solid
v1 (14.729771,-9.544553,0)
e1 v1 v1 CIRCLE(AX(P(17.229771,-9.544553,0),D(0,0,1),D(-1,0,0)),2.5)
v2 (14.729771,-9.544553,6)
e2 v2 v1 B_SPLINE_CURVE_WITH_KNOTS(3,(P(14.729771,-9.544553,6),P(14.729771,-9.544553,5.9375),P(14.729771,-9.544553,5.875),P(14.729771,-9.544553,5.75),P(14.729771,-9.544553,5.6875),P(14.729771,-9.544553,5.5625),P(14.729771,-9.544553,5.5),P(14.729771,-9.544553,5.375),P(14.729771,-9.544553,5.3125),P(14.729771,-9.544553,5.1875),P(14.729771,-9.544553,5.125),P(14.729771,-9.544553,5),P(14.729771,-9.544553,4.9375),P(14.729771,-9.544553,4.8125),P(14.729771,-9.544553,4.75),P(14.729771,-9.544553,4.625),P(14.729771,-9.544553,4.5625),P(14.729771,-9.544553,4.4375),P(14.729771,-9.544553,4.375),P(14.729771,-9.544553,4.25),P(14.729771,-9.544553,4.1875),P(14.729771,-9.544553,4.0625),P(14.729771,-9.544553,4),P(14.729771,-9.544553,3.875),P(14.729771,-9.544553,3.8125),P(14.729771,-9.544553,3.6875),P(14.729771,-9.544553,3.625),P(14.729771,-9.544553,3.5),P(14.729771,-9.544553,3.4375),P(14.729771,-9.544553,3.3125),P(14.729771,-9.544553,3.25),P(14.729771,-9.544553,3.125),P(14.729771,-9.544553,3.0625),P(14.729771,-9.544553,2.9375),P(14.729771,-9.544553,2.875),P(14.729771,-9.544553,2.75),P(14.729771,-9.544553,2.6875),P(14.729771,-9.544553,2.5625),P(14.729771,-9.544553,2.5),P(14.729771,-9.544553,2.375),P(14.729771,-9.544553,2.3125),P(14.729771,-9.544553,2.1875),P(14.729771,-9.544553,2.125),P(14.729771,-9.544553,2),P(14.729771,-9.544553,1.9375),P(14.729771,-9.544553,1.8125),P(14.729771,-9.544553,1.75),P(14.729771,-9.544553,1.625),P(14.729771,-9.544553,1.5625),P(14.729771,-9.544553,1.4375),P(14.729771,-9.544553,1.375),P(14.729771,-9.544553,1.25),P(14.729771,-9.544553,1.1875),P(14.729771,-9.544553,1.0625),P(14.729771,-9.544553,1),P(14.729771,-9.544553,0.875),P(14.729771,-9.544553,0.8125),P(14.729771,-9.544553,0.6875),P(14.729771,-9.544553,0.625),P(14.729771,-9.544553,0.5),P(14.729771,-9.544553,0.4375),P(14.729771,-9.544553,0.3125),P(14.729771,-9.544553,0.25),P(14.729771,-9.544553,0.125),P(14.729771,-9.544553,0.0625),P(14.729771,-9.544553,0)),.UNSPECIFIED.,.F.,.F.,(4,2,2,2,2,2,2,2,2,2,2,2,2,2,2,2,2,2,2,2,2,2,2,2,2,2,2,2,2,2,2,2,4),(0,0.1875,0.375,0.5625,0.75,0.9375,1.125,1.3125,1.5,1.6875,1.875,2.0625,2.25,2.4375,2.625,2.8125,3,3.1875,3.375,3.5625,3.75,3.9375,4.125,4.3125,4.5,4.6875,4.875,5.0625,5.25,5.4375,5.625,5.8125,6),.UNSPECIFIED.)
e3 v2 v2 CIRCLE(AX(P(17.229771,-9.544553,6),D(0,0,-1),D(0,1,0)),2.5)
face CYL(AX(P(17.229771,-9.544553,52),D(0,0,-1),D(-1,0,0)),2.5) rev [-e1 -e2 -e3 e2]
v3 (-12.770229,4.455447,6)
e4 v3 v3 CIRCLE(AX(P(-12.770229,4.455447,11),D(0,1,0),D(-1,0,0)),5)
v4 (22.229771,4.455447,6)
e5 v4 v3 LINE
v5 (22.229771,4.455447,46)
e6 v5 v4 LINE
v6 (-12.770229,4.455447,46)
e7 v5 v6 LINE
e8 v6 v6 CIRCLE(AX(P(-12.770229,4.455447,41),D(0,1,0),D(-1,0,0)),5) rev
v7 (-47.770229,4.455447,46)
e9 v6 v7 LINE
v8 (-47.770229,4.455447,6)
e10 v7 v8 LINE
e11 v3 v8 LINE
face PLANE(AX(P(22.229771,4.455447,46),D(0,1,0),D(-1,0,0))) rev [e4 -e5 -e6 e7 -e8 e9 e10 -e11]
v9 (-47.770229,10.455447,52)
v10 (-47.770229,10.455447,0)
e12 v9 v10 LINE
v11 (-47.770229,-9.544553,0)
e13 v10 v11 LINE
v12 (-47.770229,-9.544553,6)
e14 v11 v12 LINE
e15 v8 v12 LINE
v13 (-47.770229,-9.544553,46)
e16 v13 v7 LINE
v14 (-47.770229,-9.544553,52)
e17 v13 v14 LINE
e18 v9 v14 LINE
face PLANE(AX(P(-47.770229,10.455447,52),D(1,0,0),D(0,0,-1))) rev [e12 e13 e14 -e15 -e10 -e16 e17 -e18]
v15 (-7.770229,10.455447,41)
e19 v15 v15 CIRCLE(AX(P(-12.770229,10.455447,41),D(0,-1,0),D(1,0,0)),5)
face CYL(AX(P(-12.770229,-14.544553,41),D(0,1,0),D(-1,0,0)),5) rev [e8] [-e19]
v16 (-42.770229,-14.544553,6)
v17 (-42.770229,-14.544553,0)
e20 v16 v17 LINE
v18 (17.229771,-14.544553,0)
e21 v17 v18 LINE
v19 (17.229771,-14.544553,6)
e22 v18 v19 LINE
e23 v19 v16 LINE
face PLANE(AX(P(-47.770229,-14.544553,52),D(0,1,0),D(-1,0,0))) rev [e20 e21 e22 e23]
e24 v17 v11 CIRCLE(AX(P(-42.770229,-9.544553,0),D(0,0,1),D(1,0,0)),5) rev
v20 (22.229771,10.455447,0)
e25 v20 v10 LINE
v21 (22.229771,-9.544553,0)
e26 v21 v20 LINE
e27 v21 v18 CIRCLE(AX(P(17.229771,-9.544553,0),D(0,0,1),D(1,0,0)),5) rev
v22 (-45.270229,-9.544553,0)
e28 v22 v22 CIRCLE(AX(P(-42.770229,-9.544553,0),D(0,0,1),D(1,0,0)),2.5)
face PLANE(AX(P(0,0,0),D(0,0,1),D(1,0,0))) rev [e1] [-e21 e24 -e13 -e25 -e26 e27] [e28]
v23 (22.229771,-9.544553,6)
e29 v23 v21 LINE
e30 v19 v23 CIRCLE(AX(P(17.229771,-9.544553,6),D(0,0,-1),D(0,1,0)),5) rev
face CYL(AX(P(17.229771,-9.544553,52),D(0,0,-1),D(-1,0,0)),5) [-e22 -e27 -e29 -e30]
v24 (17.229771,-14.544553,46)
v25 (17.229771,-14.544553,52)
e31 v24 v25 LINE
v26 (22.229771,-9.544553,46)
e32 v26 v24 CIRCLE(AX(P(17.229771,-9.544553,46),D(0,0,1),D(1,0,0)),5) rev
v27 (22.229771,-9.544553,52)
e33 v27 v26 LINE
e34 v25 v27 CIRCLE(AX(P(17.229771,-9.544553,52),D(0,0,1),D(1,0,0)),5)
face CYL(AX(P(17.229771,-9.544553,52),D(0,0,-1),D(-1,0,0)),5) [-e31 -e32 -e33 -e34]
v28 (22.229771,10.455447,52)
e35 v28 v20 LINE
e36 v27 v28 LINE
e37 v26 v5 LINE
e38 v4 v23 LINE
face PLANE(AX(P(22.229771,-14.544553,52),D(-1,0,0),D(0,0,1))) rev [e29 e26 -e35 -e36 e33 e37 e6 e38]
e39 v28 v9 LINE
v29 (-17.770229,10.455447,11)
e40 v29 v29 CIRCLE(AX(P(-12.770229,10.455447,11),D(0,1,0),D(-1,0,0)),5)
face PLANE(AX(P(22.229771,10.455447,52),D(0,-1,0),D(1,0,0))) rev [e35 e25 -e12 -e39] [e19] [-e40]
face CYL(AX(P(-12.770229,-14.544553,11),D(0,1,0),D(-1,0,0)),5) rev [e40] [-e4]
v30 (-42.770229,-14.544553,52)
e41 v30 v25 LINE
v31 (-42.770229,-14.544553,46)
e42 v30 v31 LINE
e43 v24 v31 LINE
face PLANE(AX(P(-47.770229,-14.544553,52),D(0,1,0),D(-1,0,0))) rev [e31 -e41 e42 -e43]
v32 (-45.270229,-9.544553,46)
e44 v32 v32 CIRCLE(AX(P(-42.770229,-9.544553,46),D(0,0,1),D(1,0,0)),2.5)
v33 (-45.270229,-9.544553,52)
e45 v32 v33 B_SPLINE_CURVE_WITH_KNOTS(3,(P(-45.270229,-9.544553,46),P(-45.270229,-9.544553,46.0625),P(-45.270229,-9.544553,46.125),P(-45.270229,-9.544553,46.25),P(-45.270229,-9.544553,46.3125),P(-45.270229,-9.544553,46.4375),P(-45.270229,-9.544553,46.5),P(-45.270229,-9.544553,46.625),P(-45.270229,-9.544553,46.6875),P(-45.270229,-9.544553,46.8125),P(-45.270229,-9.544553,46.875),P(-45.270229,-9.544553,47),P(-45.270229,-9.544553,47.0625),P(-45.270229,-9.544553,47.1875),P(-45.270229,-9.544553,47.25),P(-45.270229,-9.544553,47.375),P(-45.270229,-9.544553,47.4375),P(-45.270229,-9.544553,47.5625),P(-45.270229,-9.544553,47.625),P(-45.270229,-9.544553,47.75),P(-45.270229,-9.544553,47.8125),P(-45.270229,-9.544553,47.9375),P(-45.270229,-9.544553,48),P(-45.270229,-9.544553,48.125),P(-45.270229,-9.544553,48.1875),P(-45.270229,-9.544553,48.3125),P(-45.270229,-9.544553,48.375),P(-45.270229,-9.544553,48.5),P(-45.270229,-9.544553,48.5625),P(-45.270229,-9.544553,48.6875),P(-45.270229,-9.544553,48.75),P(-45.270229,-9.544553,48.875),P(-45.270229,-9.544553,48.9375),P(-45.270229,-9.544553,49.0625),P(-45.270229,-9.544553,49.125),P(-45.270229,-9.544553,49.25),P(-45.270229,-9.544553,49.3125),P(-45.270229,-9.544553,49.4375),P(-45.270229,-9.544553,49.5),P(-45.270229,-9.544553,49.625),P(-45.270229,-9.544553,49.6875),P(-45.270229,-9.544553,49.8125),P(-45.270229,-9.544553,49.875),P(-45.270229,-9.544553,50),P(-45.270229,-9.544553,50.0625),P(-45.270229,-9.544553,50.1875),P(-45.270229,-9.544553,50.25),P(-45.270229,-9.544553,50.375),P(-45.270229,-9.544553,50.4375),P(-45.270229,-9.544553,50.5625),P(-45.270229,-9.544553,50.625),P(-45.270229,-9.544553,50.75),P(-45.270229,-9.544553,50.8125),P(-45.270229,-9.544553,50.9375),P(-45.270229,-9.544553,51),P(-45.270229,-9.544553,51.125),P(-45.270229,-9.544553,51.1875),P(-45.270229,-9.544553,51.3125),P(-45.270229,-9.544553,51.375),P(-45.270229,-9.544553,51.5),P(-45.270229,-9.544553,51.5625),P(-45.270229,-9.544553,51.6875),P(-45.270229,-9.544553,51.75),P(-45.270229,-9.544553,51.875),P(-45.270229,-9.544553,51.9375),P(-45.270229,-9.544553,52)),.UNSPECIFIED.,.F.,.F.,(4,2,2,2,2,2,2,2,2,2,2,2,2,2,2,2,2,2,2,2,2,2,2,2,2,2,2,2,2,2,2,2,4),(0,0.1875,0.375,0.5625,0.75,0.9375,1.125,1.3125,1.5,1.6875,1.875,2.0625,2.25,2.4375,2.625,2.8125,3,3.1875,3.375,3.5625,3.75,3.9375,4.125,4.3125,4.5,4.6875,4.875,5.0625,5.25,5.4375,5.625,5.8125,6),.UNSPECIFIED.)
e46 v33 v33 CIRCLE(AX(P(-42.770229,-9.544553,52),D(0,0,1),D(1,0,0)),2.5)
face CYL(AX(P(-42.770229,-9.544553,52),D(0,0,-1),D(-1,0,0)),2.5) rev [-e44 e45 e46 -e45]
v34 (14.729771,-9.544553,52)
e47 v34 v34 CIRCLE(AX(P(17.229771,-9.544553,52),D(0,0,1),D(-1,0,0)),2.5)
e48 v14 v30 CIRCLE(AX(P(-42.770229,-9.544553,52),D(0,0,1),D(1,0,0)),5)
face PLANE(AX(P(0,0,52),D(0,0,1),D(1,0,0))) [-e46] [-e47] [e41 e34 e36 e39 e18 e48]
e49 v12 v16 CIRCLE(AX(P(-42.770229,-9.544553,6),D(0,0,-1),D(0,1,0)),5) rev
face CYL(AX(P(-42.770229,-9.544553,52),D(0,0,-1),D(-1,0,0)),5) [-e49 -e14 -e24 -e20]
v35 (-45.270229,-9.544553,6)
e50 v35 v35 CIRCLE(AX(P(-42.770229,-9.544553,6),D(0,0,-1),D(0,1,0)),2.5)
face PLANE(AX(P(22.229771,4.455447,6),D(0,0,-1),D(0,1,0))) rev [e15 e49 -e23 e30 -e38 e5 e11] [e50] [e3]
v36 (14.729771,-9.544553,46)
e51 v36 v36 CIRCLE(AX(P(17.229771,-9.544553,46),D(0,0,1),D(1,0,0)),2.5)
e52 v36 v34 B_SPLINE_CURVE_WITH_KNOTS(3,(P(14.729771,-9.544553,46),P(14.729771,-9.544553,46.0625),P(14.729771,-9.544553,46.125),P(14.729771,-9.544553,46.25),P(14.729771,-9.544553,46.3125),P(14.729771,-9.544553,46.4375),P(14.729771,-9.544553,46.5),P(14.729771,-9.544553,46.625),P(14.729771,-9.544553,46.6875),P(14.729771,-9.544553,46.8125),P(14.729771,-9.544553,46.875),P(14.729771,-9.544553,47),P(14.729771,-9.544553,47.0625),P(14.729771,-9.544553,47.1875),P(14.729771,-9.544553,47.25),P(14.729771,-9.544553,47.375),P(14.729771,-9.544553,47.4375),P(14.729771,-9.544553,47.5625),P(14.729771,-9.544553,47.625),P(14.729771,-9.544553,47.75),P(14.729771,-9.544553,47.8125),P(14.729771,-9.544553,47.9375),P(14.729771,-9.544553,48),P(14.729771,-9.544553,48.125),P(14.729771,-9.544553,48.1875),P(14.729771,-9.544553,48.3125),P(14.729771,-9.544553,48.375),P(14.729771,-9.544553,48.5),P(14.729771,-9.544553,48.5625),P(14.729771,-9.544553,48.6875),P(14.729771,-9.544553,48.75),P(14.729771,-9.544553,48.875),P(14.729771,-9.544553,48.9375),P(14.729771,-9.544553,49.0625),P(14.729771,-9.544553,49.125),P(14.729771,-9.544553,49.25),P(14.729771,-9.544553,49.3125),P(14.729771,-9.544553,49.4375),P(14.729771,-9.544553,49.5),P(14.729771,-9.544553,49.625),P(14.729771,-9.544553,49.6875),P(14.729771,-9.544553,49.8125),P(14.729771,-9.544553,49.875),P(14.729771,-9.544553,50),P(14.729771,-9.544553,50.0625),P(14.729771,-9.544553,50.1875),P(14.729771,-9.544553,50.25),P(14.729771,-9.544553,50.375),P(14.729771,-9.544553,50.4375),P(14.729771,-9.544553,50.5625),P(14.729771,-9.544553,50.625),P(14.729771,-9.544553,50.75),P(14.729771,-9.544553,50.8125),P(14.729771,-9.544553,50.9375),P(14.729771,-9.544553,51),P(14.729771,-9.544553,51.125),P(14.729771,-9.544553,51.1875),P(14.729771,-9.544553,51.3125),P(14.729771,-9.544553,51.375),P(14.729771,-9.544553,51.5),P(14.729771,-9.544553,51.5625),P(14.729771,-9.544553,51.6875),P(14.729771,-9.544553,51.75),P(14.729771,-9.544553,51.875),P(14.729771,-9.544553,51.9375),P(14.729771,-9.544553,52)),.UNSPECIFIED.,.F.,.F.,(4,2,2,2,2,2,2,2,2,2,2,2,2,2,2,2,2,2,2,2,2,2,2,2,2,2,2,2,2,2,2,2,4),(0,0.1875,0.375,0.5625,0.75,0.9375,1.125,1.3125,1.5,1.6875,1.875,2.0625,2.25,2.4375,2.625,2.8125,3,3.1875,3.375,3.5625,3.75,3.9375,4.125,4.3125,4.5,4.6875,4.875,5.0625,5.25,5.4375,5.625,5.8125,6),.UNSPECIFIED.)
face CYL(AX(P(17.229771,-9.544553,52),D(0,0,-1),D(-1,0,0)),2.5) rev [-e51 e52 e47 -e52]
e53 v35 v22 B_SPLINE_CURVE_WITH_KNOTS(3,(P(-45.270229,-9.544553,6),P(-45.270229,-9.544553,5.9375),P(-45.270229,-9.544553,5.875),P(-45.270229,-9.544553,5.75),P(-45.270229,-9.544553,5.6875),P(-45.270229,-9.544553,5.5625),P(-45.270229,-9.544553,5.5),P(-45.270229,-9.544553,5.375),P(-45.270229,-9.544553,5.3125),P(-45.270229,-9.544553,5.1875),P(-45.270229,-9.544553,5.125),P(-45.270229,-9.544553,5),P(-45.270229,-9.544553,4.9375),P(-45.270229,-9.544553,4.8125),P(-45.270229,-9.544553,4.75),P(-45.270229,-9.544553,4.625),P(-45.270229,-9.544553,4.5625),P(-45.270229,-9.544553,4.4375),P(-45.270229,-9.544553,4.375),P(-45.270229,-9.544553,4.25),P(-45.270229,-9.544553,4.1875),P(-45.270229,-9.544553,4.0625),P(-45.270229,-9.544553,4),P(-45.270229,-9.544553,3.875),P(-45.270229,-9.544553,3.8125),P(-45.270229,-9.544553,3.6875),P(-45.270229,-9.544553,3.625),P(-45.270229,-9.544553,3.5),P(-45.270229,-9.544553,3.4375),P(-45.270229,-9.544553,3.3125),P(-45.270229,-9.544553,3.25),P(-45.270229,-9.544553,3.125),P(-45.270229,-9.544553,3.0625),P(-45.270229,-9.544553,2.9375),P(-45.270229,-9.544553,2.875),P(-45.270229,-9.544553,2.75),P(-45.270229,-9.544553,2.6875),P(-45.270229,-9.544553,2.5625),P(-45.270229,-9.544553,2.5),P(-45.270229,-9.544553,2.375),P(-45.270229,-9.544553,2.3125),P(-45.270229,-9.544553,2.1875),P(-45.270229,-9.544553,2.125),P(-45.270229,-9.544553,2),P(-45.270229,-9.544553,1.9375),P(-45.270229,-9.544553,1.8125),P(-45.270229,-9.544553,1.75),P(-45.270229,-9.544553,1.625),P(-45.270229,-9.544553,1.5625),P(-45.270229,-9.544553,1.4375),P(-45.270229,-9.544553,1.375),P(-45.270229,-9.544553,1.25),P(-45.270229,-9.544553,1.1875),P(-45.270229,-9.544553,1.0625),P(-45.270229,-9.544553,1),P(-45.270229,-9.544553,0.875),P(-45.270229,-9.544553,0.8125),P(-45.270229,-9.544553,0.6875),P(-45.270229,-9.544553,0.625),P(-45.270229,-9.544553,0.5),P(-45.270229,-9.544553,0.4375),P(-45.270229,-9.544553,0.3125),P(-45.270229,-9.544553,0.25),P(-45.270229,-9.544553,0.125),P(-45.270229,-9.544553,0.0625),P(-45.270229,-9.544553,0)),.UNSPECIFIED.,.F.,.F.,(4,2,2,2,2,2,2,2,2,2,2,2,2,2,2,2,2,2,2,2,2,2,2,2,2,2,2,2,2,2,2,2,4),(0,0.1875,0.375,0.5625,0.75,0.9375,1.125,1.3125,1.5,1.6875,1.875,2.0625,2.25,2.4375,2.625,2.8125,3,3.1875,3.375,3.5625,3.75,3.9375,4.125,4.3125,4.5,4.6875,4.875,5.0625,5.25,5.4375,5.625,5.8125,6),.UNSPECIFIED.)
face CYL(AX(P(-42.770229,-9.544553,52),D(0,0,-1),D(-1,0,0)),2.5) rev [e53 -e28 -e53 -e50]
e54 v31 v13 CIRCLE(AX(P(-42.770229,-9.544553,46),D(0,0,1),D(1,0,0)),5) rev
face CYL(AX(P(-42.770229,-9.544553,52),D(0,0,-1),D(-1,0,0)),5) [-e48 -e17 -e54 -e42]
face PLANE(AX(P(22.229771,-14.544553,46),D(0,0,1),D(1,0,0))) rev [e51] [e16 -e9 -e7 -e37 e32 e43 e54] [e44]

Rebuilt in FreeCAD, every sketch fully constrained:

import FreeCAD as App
import Part
import Sketcher
Q = App.Units.Quantity


def edges_at(feature, points):
    """Names of the edges that pass closest to the given points."""
    edges = feature.Shape.Edges
    near = lambda p: min(range(len(edges)), key=lambda i: edges[i].distToShape(Part.Vertex(*p))[0])
    return sorted({f"Edge{near(p) + 1}" for p in points})


def add_polygon(sketch, points):
    """Adds a closed chain of lines whose ends are joined by coincident constraints."""
    first, n = sketch.GeometryCount, len(points)
    for a, b in zip(points, points[1:] + points[:1]):
        sketch.addGeometry(Part.LineSegment(App.Vector(*a, 0), App.Vector(*b, 0)), False)
    for i in range(n):
        sketch.addConstraint(Sketcher.Constraint("Coincident", first + i, 2, first + (i + 1) % n, 1))

doc = App.newDocument("Part")
body = doc.addObject("PartDesign::Body", "Body")

# Sketch on XY plane
sketch1 = doc.addObject("Sketcher::SketchObject", "Sketch")
body.addObject(sketch1)
sketch1.AttachmentSupport = (doc.XY_Plane, [""])
sketch1.MapMode = "FlatFace"
add_polygon(sketch1, [(-47.770229, 10.455447), (-47.770229, -14.544553), (22.229771, -14.544553), (22.229771, 10.455447)])  # lines 0-3
sketch1.addGeometry(Part.Circle(App.Vector(-42.770229, -9.544553, 0), App.Vector(0, 0, 1), 2.5), False)  # 4
sketch1.addGeometry(Part.Circle(App.Vector(17.229771, -9.544553, 0), App.Vector(0, 0, 1), 2.5), False)  # 5
sketch1.addConstraint(Sketcher.Constraint("Vertical", 0))
sketch1.addConstraint(Sketcher.Constraint("Horizontal", 1))
sketch1.addConstraint(Sketcher.Constraint("Vertical", 2))
sketch1.addConstraint(Sketcher.Constraint("Horizontal", 3))
sketch1.addConstraint(Sketcher.Constraint("Equal", 4, 5))
sketch1.addConstraint(Sketcher.Constraint("Horizontal", 4, 3, 5, 3))
sketch1.addConstraint(Sketcher.Constraint("Diameter", 4, Q("5 mm")))
sketch1.addConstraint(Sketcher.Constraint("DistanceX", 1, 1, 1, 2, Q("70 mm")))
sketch1.addConstraint(Sketcher.Constraint("DistanceY", 0, 2, 0, 1, Q("25 mm")))
sketch1.addConstraint(Sketcher.Constraint("DistanceX", 4, 3, 5, 3, Q("60 mm")))
sketch1.addConstraint(Sketcher.Constraint("DistanceX", 0, 2, 4, 3, Q("5 mm")))
sketch1.addConstraint(Sketcher.Constraint("DistanceY", 0, 2, 4, 3, Q("5 mm")))
sketch1.addConstraint(Sketcher.Constraint("DistanceX", 4, 3, -1, 1, Q("42.770229 mm")))
sketch1.addConstraint(Sketcher.Constraint("DistanceY", 4, 3, -1, 1, Q("9.544553 mm")))
pad1 = doc.addObject("PartDesign::Pad", "Pad")
body.addObject(pad1)
pad1.Profile = sketch1
pad1.Length = 52
doc.recompute()

fillet = doc.addObject("PartDesign::Fillet", "Fillet")
body.addObject(fillet)
fillet.Base = (pad1, edges_at(pad1, [(-47.77, -14.545, 26)]))
fillet.Radius = 5
doc.recompute()

fillet2 = doc.addObject("PartDesign::Fillet", "Fillet001")
body.addObject(fillet2)
fillet2.Base = (fillet, edges_at(fillet, [(22.23, -14.545, 26)]))
fillet2.Radius = 5

# Sketch on YZ plane
sketch2 = doc.addObject("Sketcher::SketchObject", "Sketch001")
body.addObject(sketch2)
sketch2.AttachmentSupport = (doc.YZ_Plane, [""])
sketch2.MapMode = "FlatFace"
sketch2.AttachmentOffset = App.Placement(App.Vector(0, 0, -47.770229), App.Rotation())
add_polygon(sketch2, [(4.455447, 6), (-14.544553, 6), (-14.544553, 46), (4.455447, 46)])  # lines 0-3
sketch2.addConstraint(Sketcher.Constraint("Horizontal", 0))
sketch2.addConstraint(Sketcher.Constraint("Vertical", 1))
sketch2.addConstraint(Sketcher.Constraint("Horizontal", 2))
sketch2.addConstraint(Sketcher.Constraint("Vertical", 3))
sketch2.addConstraint(Sketcher.Constraint("DistanceX", 0, 2, 0, 1, Q("19 mm")))
sketch2.addConstraint(Sketcher.Constraint("DistanceY", 1, 1, 1, 2, Q("40 mm")))
sketch2.addConstraint(Sketcher.Constraint("DistanceY", -1, 1, 0, 2, Q("6 mm")))
sketch2.addConstraint(Sketcher.Constraint("DistanceX", 0, 2, -1, 1, Q("14.544553 mm")))
pocket1 = doc.addObject("PartDesign::Pocket", "Pocket")
body.addObject(pocket1)
pocket1.Profile = sketch2
pocket1.Type = "ThroughAll"
pocket1.Reversed = True

# Sketch on XZ plane
sketch3 = doc.addObject("Sketcher::SketchObject", "Sketch002")
body.addObject(sketch3)
sketch3.AttachmentSupport = (doc.XZ_Plane, [""])
sketch3.MapMode = "FlatFace"
sketch3.AttachmentOffset = App.Placement(App.Vector(0, 0, -10.455447), App.Rotation())
sketch3.addGeometry(Part.Circle(App.Vector(-12.770229, 11, 0), App.Vector(0, 0, 1), 5), False)
sketch3.addGeometry(Part.Circle(App.Vector(-12.770229, 41, 0), App.Vector(0, 0, 1), 5), False)
sketch3.addConstraint(Sketcher.Constraint("Equal", 0, 1))
sketch3.addConstraint(Sketcher.Constraint("Vertical", 0, 3, 1, 3))
sketch3.addConstraint(Sketcher.Constraint("Diameter", 0, Q("10 mm")))
sketch3.addConstraint(Sketcher.Constraint("DistanceY", -1, 1, 0, 3, Q("11 mm")))
sketch3.addConstraint(Sketcher.Constraint("DistanceY", -1, 1, 1, 3, Q("41 mm")))
sketch3.addConstraint(Sketcher.Constraint("DistanceX", 0, 3, -1, 1, Q("12.770229 mm")))
pocket2 = doc.addObject("PartDesign::Pocket", "Pocket001")
body.addObject(pocket2)
pocket2.Profile = sketch3
pocket2.Type = "ThroughAll"
pocket2.Reversed = True

doc.recompute()
